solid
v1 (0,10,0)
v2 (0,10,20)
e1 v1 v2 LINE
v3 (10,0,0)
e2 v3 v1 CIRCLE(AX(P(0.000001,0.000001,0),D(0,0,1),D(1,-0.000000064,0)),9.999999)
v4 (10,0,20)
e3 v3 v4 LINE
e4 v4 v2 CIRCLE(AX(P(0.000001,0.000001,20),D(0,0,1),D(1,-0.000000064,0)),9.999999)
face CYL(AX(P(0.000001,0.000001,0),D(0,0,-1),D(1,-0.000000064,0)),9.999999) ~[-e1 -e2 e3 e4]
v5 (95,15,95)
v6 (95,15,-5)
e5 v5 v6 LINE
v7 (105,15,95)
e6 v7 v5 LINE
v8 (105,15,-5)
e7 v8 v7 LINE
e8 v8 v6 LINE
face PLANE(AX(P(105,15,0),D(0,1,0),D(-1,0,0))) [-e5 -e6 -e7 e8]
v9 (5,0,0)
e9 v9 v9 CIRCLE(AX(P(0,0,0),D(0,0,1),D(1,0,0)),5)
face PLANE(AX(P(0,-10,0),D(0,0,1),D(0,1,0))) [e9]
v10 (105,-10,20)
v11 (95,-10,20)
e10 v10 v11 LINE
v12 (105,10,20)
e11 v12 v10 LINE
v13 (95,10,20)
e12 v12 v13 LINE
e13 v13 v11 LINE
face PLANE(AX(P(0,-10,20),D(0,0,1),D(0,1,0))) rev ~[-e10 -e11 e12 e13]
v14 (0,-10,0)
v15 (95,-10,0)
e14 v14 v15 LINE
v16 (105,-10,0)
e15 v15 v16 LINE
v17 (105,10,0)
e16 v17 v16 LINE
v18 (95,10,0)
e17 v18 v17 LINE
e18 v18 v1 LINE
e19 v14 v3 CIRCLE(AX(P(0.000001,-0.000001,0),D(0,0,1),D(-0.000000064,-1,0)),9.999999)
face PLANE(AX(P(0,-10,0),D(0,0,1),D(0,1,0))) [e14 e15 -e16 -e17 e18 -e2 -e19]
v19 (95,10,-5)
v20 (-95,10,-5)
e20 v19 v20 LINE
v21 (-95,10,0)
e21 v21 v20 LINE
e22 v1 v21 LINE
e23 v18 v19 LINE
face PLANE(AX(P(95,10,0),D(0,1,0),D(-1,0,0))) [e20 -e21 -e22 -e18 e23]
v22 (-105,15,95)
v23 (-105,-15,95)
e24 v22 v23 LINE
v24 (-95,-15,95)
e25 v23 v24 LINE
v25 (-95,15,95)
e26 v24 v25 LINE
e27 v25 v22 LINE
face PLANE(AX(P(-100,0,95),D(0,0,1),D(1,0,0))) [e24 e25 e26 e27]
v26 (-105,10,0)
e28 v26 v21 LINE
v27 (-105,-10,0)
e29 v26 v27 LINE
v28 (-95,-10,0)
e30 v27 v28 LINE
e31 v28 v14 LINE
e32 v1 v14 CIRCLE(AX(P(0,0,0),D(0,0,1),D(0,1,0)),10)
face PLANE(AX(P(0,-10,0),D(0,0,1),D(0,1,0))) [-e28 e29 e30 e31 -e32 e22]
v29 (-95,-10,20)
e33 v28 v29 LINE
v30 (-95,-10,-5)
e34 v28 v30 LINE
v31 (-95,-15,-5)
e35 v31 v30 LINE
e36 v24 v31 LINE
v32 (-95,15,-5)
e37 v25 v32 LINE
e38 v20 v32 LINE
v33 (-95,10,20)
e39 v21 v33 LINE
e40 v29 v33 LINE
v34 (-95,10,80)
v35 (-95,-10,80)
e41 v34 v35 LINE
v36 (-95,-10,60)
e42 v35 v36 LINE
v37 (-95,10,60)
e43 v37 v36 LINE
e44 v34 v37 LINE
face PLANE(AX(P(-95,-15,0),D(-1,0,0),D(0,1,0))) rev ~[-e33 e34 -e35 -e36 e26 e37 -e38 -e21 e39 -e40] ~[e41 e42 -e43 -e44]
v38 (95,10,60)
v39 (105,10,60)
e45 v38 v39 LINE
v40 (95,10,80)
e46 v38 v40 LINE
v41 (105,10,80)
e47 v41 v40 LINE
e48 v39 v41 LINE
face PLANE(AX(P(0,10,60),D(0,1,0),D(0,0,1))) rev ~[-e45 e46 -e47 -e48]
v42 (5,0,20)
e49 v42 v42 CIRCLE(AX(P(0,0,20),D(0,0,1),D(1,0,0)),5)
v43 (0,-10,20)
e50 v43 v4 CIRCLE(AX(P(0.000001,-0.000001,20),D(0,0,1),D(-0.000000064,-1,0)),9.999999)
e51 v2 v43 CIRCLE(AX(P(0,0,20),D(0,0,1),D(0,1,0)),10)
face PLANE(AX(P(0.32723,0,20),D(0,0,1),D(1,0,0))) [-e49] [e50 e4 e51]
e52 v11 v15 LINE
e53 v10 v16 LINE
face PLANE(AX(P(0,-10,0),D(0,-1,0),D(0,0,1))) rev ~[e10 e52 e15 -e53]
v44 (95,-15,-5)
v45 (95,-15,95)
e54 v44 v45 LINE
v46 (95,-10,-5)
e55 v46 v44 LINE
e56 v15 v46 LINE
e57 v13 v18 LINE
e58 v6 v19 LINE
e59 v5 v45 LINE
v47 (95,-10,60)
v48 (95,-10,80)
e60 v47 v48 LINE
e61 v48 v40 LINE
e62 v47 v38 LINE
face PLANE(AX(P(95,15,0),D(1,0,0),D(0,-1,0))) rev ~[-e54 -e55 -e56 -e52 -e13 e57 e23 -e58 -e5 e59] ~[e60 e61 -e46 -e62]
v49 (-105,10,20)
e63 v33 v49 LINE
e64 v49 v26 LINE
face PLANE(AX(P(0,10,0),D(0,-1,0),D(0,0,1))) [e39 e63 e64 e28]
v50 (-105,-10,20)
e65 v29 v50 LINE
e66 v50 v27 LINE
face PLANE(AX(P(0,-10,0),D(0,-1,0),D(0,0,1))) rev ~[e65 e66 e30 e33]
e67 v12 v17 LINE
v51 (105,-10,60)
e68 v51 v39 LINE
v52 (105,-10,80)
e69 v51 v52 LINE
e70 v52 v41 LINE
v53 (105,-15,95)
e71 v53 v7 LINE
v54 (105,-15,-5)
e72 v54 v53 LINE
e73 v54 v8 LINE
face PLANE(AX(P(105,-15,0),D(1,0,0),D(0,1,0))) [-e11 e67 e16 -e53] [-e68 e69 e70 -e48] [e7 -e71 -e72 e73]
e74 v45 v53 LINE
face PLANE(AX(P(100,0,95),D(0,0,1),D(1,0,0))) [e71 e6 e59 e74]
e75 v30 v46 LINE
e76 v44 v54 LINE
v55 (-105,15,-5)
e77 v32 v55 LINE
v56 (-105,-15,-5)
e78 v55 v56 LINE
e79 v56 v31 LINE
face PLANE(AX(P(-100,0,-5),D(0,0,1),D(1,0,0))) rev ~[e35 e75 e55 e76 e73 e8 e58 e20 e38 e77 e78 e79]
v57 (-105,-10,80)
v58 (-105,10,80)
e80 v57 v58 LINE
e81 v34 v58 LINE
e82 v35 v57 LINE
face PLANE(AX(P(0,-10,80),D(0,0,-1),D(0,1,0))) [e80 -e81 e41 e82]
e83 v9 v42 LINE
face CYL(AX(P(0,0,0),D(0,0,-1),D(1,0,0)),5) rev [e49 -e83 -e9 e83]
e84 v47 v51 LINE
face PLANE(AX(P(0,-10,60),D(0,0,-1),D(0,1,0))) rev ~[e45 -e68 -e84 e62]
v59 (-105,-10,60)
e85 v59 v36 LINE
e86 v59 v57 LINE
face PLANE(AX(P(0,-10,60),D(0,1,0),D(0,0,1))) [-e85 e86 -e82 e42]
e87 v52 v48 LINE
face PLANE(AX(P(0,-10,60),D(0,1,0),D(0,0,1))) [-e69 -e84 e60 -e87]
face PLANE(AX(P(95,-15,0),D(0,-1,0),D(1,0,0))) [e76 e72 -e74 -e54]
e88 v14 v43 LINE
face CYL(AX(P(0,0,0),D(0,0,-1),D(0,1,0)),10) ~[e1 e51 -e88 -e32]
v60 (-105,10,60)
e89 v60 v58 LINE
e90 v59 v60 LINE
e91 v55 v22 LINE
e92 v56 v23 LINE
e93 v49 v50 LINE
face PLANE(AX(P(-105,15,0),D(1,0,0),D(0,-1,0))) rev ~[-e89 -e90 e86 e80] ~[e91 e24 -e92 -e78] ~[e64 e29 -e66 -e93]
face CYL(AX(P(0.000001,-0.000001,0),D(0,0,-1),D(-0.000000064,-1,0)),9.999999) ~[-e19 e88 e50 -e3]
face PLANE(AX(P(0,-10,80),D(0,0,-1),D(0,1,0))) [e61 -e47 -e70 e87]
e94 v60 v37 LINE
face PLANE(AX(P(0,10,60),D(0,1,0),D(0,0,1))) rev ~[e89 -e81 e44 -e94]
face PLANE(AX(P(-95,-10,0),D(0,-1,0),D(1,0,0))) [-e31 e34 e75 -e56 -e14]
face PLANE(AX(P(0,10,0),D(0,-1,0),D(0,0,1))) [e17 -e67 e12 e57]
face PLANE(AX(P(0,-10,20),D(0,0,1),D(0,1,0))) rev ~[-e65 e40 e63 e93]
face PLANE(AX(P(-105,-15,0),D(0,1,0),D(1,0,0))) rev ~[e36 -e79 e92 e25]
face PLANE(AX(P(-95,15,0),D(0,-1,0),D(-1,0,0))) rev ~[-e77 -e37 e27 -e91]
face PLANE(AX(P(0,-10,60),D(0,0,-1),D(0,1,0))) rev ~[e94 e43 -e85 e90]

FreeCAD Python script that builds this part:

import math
import FreeCAD as App
import Part
import Sketcher
from FreeCAD import Vector
Q = App.Units.Quantity

doc = App.newDocument("Part")
body = doc.addObject("PartDesign::Body", "Body")

sketch1 = body.newObject("Sketcher::SketchObject", "Sketch")
sketch1.AttachmentSupport = (doc.getObject("XY_Plane"), [""])
sketch1.MapMode = "FlatFace"
sketch1.addGeometry([
    Part.LineSegment(Vector(-95, 15, 0), Vector(-105, 15, 0)),
    Part.LineSegment(Vector(-105, 15, 0), Vector(-105, -15, 0)),
    Part.LineSegment(Vector(-105, -15, 0), Vector(-95, -15, 0)),
    Part.LineSegment(Vector(-95, -15, 0), Vector(-95, -10, 0)),
    Part.LineSegment(Vector(-95, -10, 0), Vector(95, -10, 0)),
    Part.LineSegment(Vector(95, -10, 0), Vector(95, -15, 0)),
    Part.LineSegment(Vector(95, -15, 0), Vector(105, -15, 0)),
    Part.LineSegment(Vector(105, -15, 0), Vector(105, 15, 0)),
    Part.LineSegment(Vector(105, 15, 0), Vector(95, 15, 0)),
    Part.LineSegment(Vector(95, 15, 0), Vector(95, 10, 0)),
    Part.LineSegment(Vector(95, 10, 0), Vector(-95, 10, 0)),
    Part.LineSegment(Vector(-95, 10, 0), Vector(-95, 15, 0)),
], False)
sketch1.addConstraint([
    Sketcher.Constraint("Coincident", 0, 2, 1, 1),
    Sketcher.Constraint("Coincident", 1, 2, 2, 1),
    Sketcher.Constraint("Coincident", 2, 2, 3, 1),
    Sketcher.Constraint("Coincident", 3, 2, 4, 1),
    Sketcher.Constraint("Coincident", 4, 2, 5, 1),
    Sketcher.Constraint("Coincident", 5, 2, 6, 1),
    Sketcher.Constraint("Coincident", 6, 2, 7, 1),
    Sketcher.Constraint("Coincident", 7, 2, 8, 1),
    Sketcher.Constraint("Coincident", 8, 2, 9, 1),
    Sketcher.Constraint("Coincident", 9, 2, 10, 1),
    Sketcher.Constraint("Coincident", 10, 2, 11, 1),
    Sketcher.Constraint("Coincident", 11, 2, 0, 1),
    Sketcher.Constraint("Horizontal", 0),
    Sketcher.Constraint("Vertical", 1),
    Sketcher.Constraint("Horizontal", 2),
    Sketcher.Constraint("Vertical", 3),
    Sketcher.Constraint("Horizontal", 4),
    Sketcher.Constraint("Vertical", 5),
    Sketcher.Constraint("Horizontal", 6),
    Sketcher.Constraint("Vertical", 7),
    Sketcher.Constraint("Horizontal", 8),
    Sketcher.Constraint("Vertical", 9),
    Sketcher.Constraint("Horizontal", 10),
    Sketcher.Constraint("Vertical", 11),
    Sketcher.Constraint("Symmetric", 0, 2, 6, 2, -1, 1),
    Sketcher.Constraint("Symmetric", 2, 2, 8, 2, -1, 1),
    Sketcher.Constraint("Symmetric", 4, 2, 10, 2, -1, 1),
    Sketcher.Constraint("Symmetric", 2, 2, 5, 2, -2),
    Sketcher.Constraint("DistanceX", 0, 2, 0, 1, Q("10 mm")),
    Sketcher.Constraint("DistanceX", 4, 1, 4, 2, Q("190 mm")),
    Sketcher.Constraint("DistanceY", 1, 2, 1, 1, Q("30 mm")),
    Sketcher.Constraint("DistanceY", 3, 1, 3, 2, Q("5 mm")),
])
pad1 = body.newObject("PartDesign::Pad", "Pad")
pad1.Profile = sketch1
pad1.Length = 5
pad1.Reversed = True

sketch2 = body.newObject("Sketcher::SketchObject", "Sketch001")
sketch2.AttachmentSupport = (doc.getObject("XY_Plane"), [""])
sketch2.MapMode = "FlatFace"
sketch2.addGeometry([
    Part.LineSegment(Vector(-95, 15, 0), Vector(-105, 15, 0)),
    Part.LineSegment(Vector(-105, 15, 0), Vector(-105, -15, 0)),
    Part.LineSegment(Vector(-105, -15, 0), Vector(-95, -15, 0)),
    Part.LineSegment(Vector(-95, -15, 0), Vector(-95, 15, 0)),
    Part.LineSegment(Vector(95, 15, 0), Vector(95, -15, 0)),
    Part.LineSegment(Vector(95, -15, 0), Vector(105, -15, 0)),
    Part.LineSegment(Vector(105, -15, 0), Vector(105, 15, 0)),
    Part.LineSegment(Vector(105, 15, 0), Vector(95, 15, 0)),
], False)
sketch2.addConstraint([
    Sketcher.Constraint("Coincident", 0, 2, 1, 1),
    Sketcher.Constraint("Coincident", 1, 2, 2, 1),
    Sketcher.Constraint("Coincident", 2, 2, 3, 1),
    Sketcher.Constraint("Coincident", 3, 2, 0, 1),
    Sketcher.Constraint("Coincident", 4, 2, 5, 1),
    Sketcher.Constraint("Coincident", 5, 2, 6, 1),
    Sketcher.Constraint("Coincident", 6, 2, 7, 1),
    Sketcher.Constraint("Coincident", 7, 2, 4, 1),
    Sketcher.Constraint("Horizontal", 0),
    Sketcher.Constraint("Vertical", 1),
    Sketcher.Constraint("Horizontal", 2),
    Sketcher.Constraint("Vertical", 3),
    Sketcher.Constraint("Vertical", 4),
    Sketcher.Constraint("Horizontal", 5),
    Sketcher.Constraint("Vertical", 6),
    Sketcher.Constraint("Horizontal", 7),
    Sketcher.Constraint("Symmetric", 3, 2, 4, 2, -1, 1),
    Sketcher.Constraint("Symmetric", 1, 2, 6, 2, -1, 1),
    Sketcher.Constraint("Horizontal", 2, 2, 4, 2),
    Sketcher.Constraint("DistanceX", 0, 2, 0, 1, Q("10 mm")),
    Sketcher.Constraint("DistanceY", 1, 2, 1, 1, Q("30 mm")),
    Sketcher.Constraint("DistanceX", 0, 2, -1, 1, Q("105 mm")),
])
pad2 = body.newObject("PartDesign::Pad", "Pad001")
pad2.Profile = sketch2
pad2.Length = 95

sketch3 = body.newObject("Sketcher::SketchObject", "Sketch002")
sketch3.AttachmentSupport = (doc.getObject("YZ_Plane"), [""])
sketch3.MapMode = "FlatFace"
sketch3.addGeometry([
    Part.LineSegment(Vector(-10, 20, 0), Vector(-10, 0, 0)),
    Part.LineSegment(Vector(-10, 0, 0), Vector(10, 0, 0)),
    Part.LineSegment(Vector(10, 0, 0), Vector(10, 20, 0)),
    Part.LineSegment(Vector(10, 20, 0), Vector(-10, 20, 0)),
    Part.LineSegment(Vector(-10, 80, 0), Vector(-10, 60, 0)),
    Part.LineSegment(Vector(-10, 60, 0), Vector(10, 60, 0)),
    Part.LineSegment(Vector(10, 60, 0), Vector(10, 80, 0)),
    Part.LineSegment(Vector(10, 80, 0), Vector(-10, 80, 0)),
], False)
sketch3.addConstraint([
    Sketcher.Constraint("Coincident", 0, 2, 1, 1),
    Sketcher.Constraint("Coincident", 1, 2, 2, 1),
    Sketcher.Constraint("Coincident", 2, 2, 3, 1),
    Sketcher.Constraint("Coincident", 3, 2, 0, 1),
    Sketcher.Constraint("Coincident", 4, 2, 5, 1),
    Sketcher.Constraint("Coincident", 5, 2, 6, 1),
    Sketcher.Constraint("Coincident", 6, 2, 7, 1),
    Sketcher.Constraint("Coincident", 7, 2, 4, 1),
    Sketcher.Constraint("Vertical", 0),
    Sketcher.Constraint("Horizontal", 1),
    Sketcher.Constraint("Vertical", 2),
    Sketcher.Constraint("Horizontal", 3),
    Sketcher.Constraint("Vertical", 4),
    Sketcher.Constraint("Horizontal", 5),
    Sketcher.Constraint("Vertical", 6),
    Sketcher.Constraint("Horizontal", 7),
    Sketcher.Constraint("Symmetric", 0, 2, 1, 2, -1, 1),
    Sketcher.Constraint("Vertical", 3, 2, 4, 2),
    Sketcher.Constraint("Vertical", 2, 2, 5, 2),
    Sketcher.Constraint("Equal", 7, 0),
    Sketcher.Constraint("Equal", 2, 4),
    Sketcher.Constraint("DistanceX", 1, 1, 1, 2, Q("20 mm")),
    Sketcher.Constraint("DistanceY", -1, 1, 4, 2, Q("60 mm")),
])
pocket1 = body.newObject("PartDesign::Pocket", "Pocket")
pocket1.Profile = sketch3
pocket1.Length = 400
pocket1.Midplane = True

sketch4 = body.newObject("Sketcher::SketchObject", "Sketch003")
sketch4.AttachmentSupport = (doc.getObject("XY_Plane"), [""])
sketch4.MapMode = "FlatFace"
sketch4.addGeometry([
    Part.ArcOfCircle(Part.Circle(Vector(0.000001, -0.000001, 0), Vector(0, 0, 1), 9.999999), math.radians(-90.000004), math.radians(0.000004)),
    Part.ArcOfCircle(Part.Circle(Vector(0.000001, 0.000001, 0), Vector(0, 0, 1), 9.999999), math.radians(-0.000004), math.radians(90.000004)),
    Part.ArcOfCircle(Part.Circle(Vector(0, 0, 0), Vector(0, 0, 1), 10), math.radians(90), math.radians(270)),
    Part.Circle(Vector(0, 0, 0), Vector(0, 0, 1), 5),
], False)
sketch4.addConstraint([
    Sketcher.Constraint("Tangent", 0, 2, 1, 1),
    Sketcher.Constraint("Tangent", 1, 2, 2, 1),
    Sketcher.Constraint("Tangent", 2, 2, 0, 1),
    Sketcher.Constraint("Coincident", 0, 3, -1, 1),
    Sketcher.Constraint("Coincident", 3, 3, -1, 1),
    Sketcher.Constraint("PointOnObject", 0, 2, -1),
    Sketcher.Constraint("PointOnObject", 1, 2, -2),
    Sketcher.Constraint("PointOnObject", 2, 2, -2),
    Sketcher.Constraint("Diameter", 3, Q("10 mm")),
    Sketcher.Constraint("Radius", 0, Q("9.999999 mm")),
])
pad3 = body.newObject("PartDesign::Pad", "Pad002")
pad3.Profile = sketch4
pad3.Length = 20

doc.recompute()
